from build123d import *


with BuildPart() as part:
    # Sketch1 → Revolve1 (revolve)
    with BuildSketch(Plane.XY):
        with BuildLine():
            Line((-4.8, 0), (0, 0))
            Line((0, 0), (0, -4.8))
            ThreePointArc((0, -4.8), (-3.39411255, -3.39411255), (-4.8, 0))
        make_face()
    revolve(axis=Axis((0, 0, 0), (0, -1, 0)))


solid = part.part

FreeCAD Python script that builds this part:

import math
import FreeCAD as App
import Part
import Sketcher
from FreeCAD import Vector
Q = App.Units.Quantity

doc = App.newDocument("Part")
body = doc.addObject("PartDesign::Body", "Body")

# Sketch on XY plane
sketch1 = body.newObject("Sketcher::SketchObject", "Sketch")
sketch1.AttachmentSupport = (doc.getObject("XY_Plane"), [""])
sketch1.MapMode = "FlatFace"
sketch1.addGeometry([
    Part.LineSegment(Vector(0, 0, 0), Vector(-4.8, 0, 0)),
    Part.ArcOfCircle(Part.Circle(Vector(0, 0, 0), Vector(0, 0, 1), 4.8), math.radians(180), math.radians(270)),
    Part.LineSegment(Vector(0, -4.8, 0), Vector(0, 0, 0)),
], False)
sketch1.addConstraint([
    Sketcher.Constraint("Coincident", 0, 2, 1, 1),
    Sketcher.Constraint("Coincident", 1, 2, 2, 1),
    Sketcher.Constraint("Coincident", 2, 2, 0, 1),
    Sketcher.Constraint("Horizontal", 0),
    Sketcher.Constraint("Vertical", 2),
    Sketcher.Constraint("Coincident", 1, 3, -1, 1),
    Sketcher.Constraint("Coincident", 2, 2, -1, 1),
    Sketcher.Constraint("Radius", 1, Q("4.8 mm")),
])
revolution = body.newObject("PartDesign::Revolution", "Revolution")
revolution.Profile = sketch1
revolution.ReferenceAxis = (sketch1, ["V_Axis"])
revolution.Angle = 360

doc.recompute()
